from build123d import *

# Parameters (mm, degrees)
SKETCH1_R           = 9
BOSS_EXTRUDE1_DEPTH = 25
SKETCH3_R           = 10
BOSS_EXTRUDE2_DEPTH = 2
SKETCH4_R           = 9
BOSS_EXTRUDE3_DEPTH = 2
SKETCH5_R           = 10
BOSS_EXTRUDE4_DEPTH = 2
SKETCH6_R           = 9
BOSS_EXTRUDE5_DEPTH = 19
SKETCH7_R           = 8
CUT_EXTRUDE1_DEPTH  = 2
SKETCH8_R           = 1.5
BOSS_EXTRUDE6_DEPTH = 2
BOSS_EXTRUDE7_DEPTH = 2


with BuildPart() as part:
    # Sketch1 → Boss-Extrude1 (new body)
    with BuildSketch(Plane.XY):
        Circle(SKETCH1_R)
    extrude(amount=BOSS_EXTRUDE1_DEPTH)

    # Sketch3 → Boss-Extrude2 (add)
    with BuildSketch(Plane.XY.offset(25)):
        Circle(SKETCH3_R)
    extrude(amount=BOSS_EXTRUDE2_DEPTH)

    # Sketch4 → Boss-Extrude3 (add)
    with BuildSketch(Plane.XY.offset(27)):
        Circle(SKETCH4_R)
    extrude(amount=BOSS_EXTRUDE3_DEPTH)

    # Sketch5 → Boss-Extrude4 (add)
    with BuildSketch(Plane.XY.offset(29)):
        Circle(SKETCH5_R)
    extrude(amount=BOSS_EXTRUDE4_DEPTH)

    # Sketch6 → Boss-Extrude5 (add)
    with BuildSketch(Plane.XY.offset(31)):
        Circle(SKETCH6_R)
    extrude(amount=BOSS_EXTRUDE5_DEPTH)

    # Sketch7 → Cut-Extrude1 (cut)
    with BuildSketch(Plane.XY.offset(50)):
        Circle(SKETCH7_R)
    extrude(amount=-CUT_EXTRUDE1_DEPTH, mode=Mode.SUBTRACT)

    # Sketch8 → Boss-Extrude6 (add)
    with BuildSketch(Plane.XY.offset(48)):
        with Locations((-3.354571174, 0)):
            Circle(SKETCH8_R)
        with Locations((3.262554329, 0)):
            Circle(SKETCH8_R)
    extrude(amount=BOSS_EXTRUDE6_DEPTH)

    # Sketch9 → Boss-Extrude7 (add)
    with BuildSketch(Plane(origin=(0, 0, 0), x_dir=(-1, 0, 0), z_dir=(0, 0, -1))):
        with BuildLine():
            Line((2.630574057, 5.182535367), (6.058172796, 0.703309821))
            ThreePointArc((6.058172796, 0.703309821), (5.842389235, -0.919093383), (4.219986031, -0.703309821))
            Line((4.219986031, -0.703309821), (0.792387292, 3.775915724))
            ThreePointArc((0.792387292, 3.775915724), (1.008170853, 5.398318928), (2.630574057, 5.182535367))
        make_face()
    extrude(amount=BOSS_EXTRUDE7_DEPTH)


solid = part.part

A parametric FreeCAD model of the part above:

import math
import FreeCAD as App
import Part
import Sketcher

doc = App.newDocument("Part")
body = doc.addObject("PartDesign::Body", "Body")

# Sketch on XY plane
sketch1 = doc.addObject("Sketcher::SketchObject", "Sketch")
body.addObject(sketch1)
sketch1.AttachmentSupport = (doc.XY_Plane, [""])
sketch1.MapMode = "FlatFace"
sketch1.addGeometry(Part.Circle(App.Vector(0, 0, 0), App.Vector(0, 0, 1), 9), False)
sketch1.addConstraint([
    Sketcher.Constraint("Coincident", 0, 3, -1, 1),
    Sketcher.Constraint("Diameter", 0, 18.0),
])
pad1 = doc.addObject("PartDesign::Pad", "Pad")
body.addObject(pad1)
pad1.Profile = sketch1
pad1.Length = 25

# Sketch on XY plane
sketch2 = doc.addObject("Sketcher::SketchObject", "Sketch001")
body.addObject(sketch2)
sketch2.AttachmentSupport = (doc.XY_Plane, [""])
sketch2.MapMode = "FlatFace"
sketch2.AttachmentOffset = App.Placement(App.Vector(0, 0, 25), App.Rotation())
sketch2.addGeometry(Part.Circle(App.Vector(0, 0, 0), App.Vector(0, 0, 1), 10), False)
sketch2.addConstraint([
    Sketcher.Constraint("Coincident", 0, 3, -1, 1),
    Sketcher.Constraint("Diameter", 0, 20.0),
])
pad2 = doc.addObject("PartDesign::Pad", "Pad001")
body.addObject(pad2)
pad2.Profile = sketch2
pad2.Length = 2

# Sketch on XY plane
sketch3 = doc.addObject("Sketcher::SketchObject", "Sketch002")
body.addObject(sketch3)
sketch3.AttachmentSupport = (doc.XY_Plane, [""])
sketch3.MapMode = "FlatFace"
sketch3.AttachmentOffset = App.Placement(App.Vector(0, 0, 27), App.Rotation())
sketch3.addGeometry(Part.Circle(App.Vector(0, 0, 0), App.Vector(0, 0, 1), 9), False)
sketch3.addConstraint([
    Sketcher.Constraint("Coincident", 0, 3, -1, 1),
    Sketcher.Constraint("Diameter", 0, 18.0),
])
pad3 = doc.addObject("PartDesign::Pad", "Pad002")
body.addObject(pad3)
pad3.Profile = sketch3
pad3.Length = 2

# Sketch on XY plane
sketch4 = doc.addObject("Sketcher::SketchObject", "Sketch003")
body.addObject(sketch4)
sketch4.AttachmentSupport = (doc.XY_Plane, [""])
sketch4.MapMode = "FlatFace"
sketch4.AttachmentOffset = App.Placement(App.Vector(0, 0, 29), App.Rotation())
sketch4.addGeometry(Part.Circle(App.Vector(0, 0, 0), App.Vector(0, 0, 1), 10), False)
sketch4.addConstraint([
    Sketcher.Constraint("Coincident", 0, 3, -1, 1),
    Sketcher.Constraint("Diameter", 0, 20.0),
])
pad4 = doc.addObject("PartDesign::Pad", "Pad003")
body.addObject(pad4)
pad4.Profile = sketch4
pad4.Length = 2

# Sketch on XY plane
sketch5 = doc.addObject("Sketcher::SketchObject", "Sketch004")
body.addObject(sketch5)
sketch5.AttachmentSupport = (doc.XY_Plane, [""])
sketch5.MapMode = "FlatFace"
sketch5.AttachmentOffset = App.Placement(App.Vector(0, 0, 31), App.Rotation())
sketch5.addGeometry(Part.Circle(App.Vector(0, 0, 0), App.Vector(0, 0, 1), 9), False)
sketch5.addConstraint([
    Sketcher.Constraint("Coincident", 0, 3, -1, 1),
    Sketcher.Constraint("Diameter", 0, 18.0),
])
pad5 = doc.addObject("PartDesign::Pad", "Pad004")
body.addObject(pad5)
pad5.Profile = sketch5
pad5.Length = 19

# Sketch on XY plane
sketch6 = doc.addObject("Sketcher::SketchObject", "Sketch005")
body.addObject(sketch6)
sketch6.AttachmentSupport = (doc.XY_Plane, [""])
sketch6.MapMode = "FlatFace"
sketch6.AttachmentOffset = App.Placement(App.Vector(0, 0, 50), App.Rotation())
sketch6.addGeometry(Part.Circle(App.Vector(0, 0, 0), App.Vector(0, 0, 1), 8), False)
sketch6.addConstraint([
    Sketcher.Constraint("Coincident", 0, 3, -1, 1),
    Sketcher.Constraint("Diameter", 0, 16.0),
])
pocket1 = doc.addObject("PartDesign::Pocket", "Pocket")
body.addObject(pocket1)
pocket1.Profile = sketch6
pocket1.Length = 2

# Sketch on XY plane
sketch7 = doc.addObject("Sketcher::SketchObject", "Sketch006")
body.addObject(sketch7)
sketch7.AttachmentSupport = (doc.XY_Plane, [""])
sketch7.MapMode = "FlatFace"
sketch7.AttachmentOffset = App.Placement(App.Vector(0, 0, 48), App.Rotation())
sketch7.addGeometry([
    Part.Circle(App.Vector(-3.4, 0, 0), App.Vector(0, 0, 1), 1.5),
    Part.Circle(App.Vector(3.3, 0, 0), App.Vector(0, 0, 1), 1.5),
], False)
sketch7.addConstraint([
    Sketcher.Constraint("Equal", 0, 1),
    Sketcher.Constraint("PointOnObject", 0, 3, -1),
    Sketcher.Constraint("PointOnObject", 1, 3, -1),
    Sketcher.Constraint("Diameter", 0, 3.0),
    Sketcher.Constraint("DistanceX", 0, 3, -1, 1, 3.354571),
    Sketcher.Constraint("DistanceX", -1, 1, 1, 3, 3.262554),
])
pad6 = doc.addObject("PartDesign::Pad", "Pad005")
body.addObject(pad6)
pad6.Profile = sketch7
pad6.Length = 2

# Sketch on XY plane
sketch8 = doc.addObject("Sketcher::SketchObject", "Sketch007")
body.addObject(sketch8)
sketch8.AttachmentSupport = (doc.XY_Plane, [""])
sketch8.MapMode = "FlatFace"
sketch8.addGeometry([
    Part.LineSegment(App.Vector(-6.1, 0.7, 0), App.Vector(-2.6, 5.2, 0)),
    Part.ArcOfCircle(Part.Circle(App.Vector(-1.7, 4.5, 0), App.Vector(0, 0, 1), 1.2), math.radians(-37), math.radians(143)),
    Part.LineSegment(App.Vector(-0.8, 3.8, 0), App.Vector(-4.2, -0.7, 0)),
    Part.ArcOfCircle(Part.Circle(App.Vector(-5.1, 0, 0), App.Vector(0, 0, 1), 1.2), math.radians(143), math.radians(323)),
], False)
sketch8.addConstraint([
    Sketcher.Constraint("Tangent", 0, 2, 1, 2),
    Sketcher.Constraint("Tangent", 1, 1, 2, 1),
    Sketcher.Constraint("Tangent", 2, 2, 3, 2),
    Sketcher.Constraint("Tangent", 3, 1, 0, 1),
    Sketcher.Constraint("Equal", 1, 3),
    Sketcher.Constraint("PointOnObject", 3, 3, -1),
    Sketcher.Constraint("Radius", 1, 1.157315),
    Sketcher.Constraint("DistanceX", 3, 3, 1, 3, 3.427599),
    Sketcher.Constraint("DistanceX", 1, 3, -1, 1, 1.711481),
    Sketcher.Constraint("DistanceY", 2, 2, -1, 1, 0.70331),
])
pad7 = doc.addObject("PartDesign::Pad", "Pad006")
body.addObject(pad7)
pad7.Profile = sketch8
pad7.Length = 2
pad7.Reversed = True

doc.recompute()
